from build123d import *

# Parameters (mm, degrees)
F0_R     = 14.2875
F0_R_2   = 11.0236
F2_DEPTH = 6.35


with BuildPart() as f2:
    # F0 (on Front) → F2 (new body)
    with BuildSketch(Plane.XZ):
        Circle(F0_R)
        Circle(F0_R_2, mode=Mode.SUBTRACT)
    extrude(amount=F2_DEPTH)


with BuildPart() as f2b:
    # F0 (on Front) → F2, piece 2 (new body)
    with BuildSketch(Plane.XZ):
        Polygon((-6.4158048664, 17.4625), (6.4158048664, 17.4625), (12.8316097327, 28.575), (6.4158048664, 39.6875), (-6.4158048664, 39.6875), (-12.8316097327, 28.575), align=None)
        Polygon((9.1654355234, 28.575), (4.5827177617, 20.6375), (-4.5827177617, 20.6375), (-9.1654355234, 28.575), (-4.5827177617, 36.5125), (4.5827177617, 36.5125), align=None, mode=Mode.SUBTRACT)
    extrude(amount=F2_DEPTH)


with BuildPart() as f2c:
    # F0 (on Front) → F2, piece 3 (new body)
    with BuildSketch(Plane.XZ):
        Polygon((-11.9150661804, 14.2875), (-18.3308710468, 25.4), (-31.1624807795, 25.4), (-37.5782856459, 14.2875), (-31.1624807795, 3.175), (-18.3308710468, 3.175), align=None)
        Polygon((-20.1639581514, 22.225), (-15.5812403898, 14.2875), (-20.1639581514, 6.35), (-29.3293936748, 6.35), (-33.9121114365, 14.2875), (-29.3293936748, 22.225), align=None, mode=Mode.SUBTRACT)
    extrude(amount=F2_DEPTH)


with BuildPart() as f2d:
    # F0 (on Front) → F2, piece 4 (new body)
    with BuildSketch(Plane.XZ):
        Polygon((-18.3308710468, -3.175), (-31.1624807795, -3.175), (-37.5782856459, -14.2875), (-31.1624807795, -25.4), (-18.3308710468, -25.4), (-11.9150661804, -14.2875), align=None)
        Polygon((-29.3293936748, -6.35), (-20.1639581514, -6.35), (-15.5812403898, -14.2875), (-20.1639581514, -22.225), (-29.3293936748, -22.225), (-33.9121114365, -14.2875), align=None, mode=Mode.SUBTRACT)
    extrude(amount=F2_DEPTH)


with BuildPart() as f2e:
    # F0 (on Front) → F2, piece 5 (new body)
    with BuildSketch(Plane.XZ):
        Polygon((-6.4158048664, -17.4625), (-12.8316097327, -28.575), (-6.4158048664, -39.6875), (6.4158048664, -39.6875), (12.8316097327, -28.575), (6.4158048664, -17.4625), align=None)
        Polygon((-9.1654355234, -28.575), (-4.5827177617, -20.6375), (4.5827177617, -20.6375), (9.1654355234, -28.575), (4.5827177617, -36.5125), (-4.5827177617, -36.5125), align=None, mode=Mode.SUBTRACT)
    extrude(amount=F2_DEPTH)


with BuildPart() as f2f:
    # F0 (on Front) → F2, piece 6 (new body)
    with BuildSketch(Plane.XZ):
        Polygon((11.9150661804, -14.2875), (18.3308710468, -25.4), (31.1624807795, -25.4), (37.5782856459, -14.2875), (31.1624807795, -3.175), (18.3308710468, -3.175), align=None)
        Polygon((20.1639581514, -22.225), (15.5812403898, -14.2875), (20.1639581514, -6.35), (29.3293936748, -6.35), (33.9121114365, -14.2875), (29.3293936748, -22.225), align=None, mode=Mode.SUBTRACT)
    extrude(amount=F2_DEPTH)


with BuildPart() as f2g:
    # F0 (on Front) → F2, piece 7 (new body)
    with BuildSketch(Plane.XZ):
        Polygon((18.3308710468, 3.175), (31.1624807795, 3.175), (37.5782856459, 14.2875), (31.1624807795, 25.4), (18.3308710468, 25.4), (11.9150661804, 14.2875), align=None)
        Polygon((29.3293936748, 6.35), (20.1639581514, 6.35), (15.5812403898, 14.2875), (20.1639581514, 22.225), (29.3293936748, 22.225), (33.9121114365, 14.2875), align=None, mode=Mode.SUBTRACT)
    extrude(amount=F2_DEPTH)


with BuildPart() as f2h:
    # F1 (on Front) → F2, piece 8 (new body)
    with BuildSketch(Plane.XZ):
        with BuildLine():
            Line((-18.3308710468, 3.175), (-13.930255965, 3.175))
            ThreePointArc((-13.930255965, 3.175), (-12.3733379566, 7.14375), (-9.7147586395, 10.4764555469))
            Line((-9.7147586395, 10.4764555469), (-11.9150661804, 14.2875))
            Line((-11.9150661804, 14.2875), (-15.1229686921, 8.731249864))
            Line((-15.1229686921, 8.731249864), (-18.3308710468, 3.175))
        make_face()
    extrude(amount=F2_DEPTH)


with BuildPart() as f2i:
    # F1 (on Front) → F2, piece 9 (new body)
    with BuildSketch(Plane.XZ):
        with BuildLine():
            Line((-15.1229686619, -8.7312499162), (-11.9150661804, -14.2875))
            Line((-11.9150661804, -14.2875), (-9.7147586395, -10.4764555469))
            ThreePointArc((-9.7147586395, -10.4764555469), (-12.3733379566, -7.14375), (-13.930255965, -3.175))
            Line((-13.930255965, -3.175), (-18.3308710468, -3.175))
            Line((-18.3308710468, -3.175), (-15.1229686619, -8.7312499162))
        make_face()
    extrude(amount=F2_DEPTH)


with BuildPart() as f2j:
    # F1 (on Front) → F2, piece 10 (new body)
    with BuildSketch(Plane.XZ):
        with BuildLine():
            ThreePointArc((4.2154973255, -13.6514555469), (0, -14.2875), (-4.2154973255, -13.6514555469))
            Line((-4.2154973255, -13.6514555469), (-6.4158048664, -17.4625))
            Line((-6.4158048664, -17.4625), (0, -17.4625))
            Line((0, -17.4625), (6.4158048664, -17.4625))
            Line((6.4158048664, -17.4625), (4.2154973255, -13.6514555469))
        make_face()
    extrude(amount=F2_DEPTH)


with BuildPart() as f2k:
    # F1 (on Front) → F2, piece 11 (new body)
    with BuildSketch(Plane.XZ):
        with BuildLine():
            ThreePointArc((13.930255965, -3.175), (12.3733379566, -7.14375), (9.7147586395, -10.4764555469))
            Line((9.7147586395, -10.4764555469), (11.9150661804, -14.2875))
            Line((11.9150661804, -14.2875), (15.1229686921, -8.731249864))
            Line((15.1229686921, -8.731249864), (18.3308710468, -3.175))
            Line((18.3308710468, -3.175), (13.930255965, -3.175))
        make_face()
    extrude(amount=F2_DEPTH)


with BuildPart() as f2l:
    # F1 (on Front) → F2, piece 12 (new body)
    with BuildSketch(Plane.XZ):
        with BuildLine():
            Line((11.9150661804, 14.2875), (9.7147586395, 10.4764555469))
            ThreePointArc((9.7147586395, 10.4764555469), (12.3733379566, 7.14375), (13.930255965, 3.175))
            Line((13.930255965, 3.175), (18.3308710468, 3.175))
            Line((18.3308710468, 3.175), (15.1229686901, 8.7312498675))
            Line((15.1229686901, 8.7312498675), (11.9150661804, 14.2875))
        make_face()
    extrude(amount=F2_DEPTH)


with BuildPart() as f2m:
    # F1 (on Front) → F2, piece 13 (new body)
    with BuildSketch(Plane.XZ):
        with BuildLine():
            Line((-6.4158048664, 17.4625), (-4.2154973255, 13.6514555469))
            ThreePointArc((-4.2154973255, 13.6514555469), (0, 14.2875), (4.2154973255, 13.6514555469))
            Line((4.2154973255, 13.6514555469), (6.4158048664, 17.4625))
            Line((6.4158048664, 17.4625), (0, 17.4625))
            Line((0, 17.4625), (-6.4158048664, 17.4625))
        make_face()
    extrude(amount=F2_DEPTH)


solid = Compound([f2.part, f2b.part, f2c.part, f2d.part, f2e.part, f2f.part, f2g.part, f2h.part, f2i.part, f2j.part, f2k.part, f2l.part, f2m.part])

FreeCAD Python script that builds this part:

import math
import FreeCAD as App
import Part
import Sketcher
Q = App.Units.Quantity

doc = App.newDocument("Part")
body = doc.addObject("PartDesign::Body", "Body")

sketch1 = body.newObject("Sketcher::SketchObject", "Sketch")
sketch1.AttachmentSupport = (doc.getObject("XZ_Plane"), [""])
sketch1.MapMode = "FlatFace"
sketch1.addGeometry(Part.Circle(App.Vector(0, 0, 0), App.Vector(0, 0, 1), 14), False)
sketch1.addGeometry(Part.Circle(App.Vector(0, 0, 0), App.Vector(0, 0, 1), 11), False)
sketch1.addConstraint(Sketcher.Constraint("Coincident", 0, 3, -1, 1))
sketch1.addConstraint(Sketcher.Constraint("Coincident", 1, 3, -1, 1))
sketch1.addConstraint(Sketcher.Constraint("Diameter", 0, Q("1.125 in")))
sketch1.addConstraint(Sketcher.Constraint("Diameter", 1, Q("0.868 in")))
pad1 = body.newObject("PartDesign::Pad", "Pad")
pad1.Profile = sketch1
pad1.Length = Q("0.25 in")
body2 = doc.addObject("PartDesign::Body", "Body001")

sketch2 = body2.newObject("Sketcher::SketchObject", "Sketch001")
sketch2.AttachmentSupport = (doc.getObject("XZ_Plane001"), [""])
sketch2.MapMode = "FlatFace"
sketch2.addGeometry(Part.LineSegment(App.Vector(-6, 17, 0), App.Vector(6, 17, 0)), False)
sketch2.addGeometry(Part.LineSegment(App.Vector(6, 17, 0), App.Vector(13, 29, 0)), False)
sketch2.addGeometry(Part.LineSegment(App.Vector(13, 29, 0), App.Vector(6, 40, 0)), False)
sketch2.addGeometry(Part.LineSegment(App.Vector(6, 40, 0), App.Vector(-6, 40, 0)), False)
sketch2.addGeometry(Part.LineSegment(App.Vector(-6, 40, 0), App.Vector(-13, 29, 0)), False)
sketch2.addGeometry(Part.LineSegment(App.Vector(-13, 29, 0), App.Vector(-6, 17, 0)), False)
sketch2.addGeometry(Part.LineSegment(App.Vector(5, 37, 0), App.Vector(9, 29, 0)), False)
sketch2.addGeometry(Part.LineSegment(App.Vector(9, 29, 0), App.Vector(5, 21, 0)), False)
sketch2.addGeometry(Part.LineSegment(App.Vector(5, 21, 0), App.Vector(-5, 21, 0)), False)
sketch2.addGeometry(Part.LineSegment(App.Vector(-5, 21, 0), App.Vector(-9, 29, 0)), False)
sketch2.addGeometry(Part.LineSegment(App.Vector(-9, 29, 0), App.Vector(-5, 37, 0)), False)
sketch2.addGeometry(Part.LineSegment(App.Vector(-5, 37, 0), App.Vector(5, 37, 0)), False)
sketch2.addConstraint(Sketcher.Constraint("Coincident", 0, 2, 1, 1))
sketch2.addConstraint(Sketcher.Constraint("Coincident", 1, 2, 2, 1))
sketch2.addConstraint(Sketcher.Constraint("Coincident", 2, 2, 3, 1))
sketch2.addConstraint(Sketcher.Constraint("Coincident", 3, 2, 4, 1))
sketch2.addConstraint(Sketcher.Constraint("Coincident", 4, 2, 5, 1))
sketch2.addConstraint(Sketcher.Constraint("Coincident", 5, 2, 0, 1))
sketch2.addConstraint(Sketcher.Constraint("Coincident", 6, 2, 7, 1))
sketch2.addConstraint(Sketcher.Constraint("Coincident", 7, 2, 8, 1))
sketch2.addConstraint(Sketcher.Constraint("Coincident", 8, 2, 9, 1))
sketch2.addConstraint(Sketcher.Constraint("Coincident", 9, 2, 10, 1))
sketch2.addConstraint(Sketcher.Constraint("Coincident", 10, 2, 11, 1))
sketch2.addConstraint(Sketcher.Constraint("Coincident", 11, 2, 6, 1))
sketch2.addConstraint(Sketcher.Constraint("Horizontal", 0))
sketch2.addConstraint(Sketcher.Constraint("Horizontal", 3))
sketch2.addConstraint(Sketcher.Constraint("Horizontal", 8))
sketch2.addConstraint(Sketcher.Constraint("Horizontal", 11))
sketch2.addConstraint(Sketcher.Constraint("Symmetric", 1, 2, 4, 2, -2))
sketch2.addConstraint(Sketcher.Constraint("Symmetric", 6, 2, 9, 2, -2))
sketch2.addConstraint(Sketcher.Constraint("Parallel", 1, 4))
sketch2.addConstraint(Sketcher.Constraint("Parallel", 2, 5))
sketch2.addConstraint(Sketcher.Constraint("Parallel", 5, 6))
sketch2.addConstraint(Sketcher.Constraint("Parallel", 4, 7))
sketch2.addConstraint(Sketcher.Constraint("Parallel", 6, 9))
sketch2.addConstraint(Sketcher.Constraint("Parallel", 7, 10))
sketch2.addConstraint(Sketcher.Constraint("Horizontal", 4, 2, 6, 2))
sketch2.addConstraint(Sketcher.Constraint("Vertical", 0, 2, 2, 2))
sketch2.addConstraint(Sketcher.Constraint("Vertical", 3, 2, 5, 2))
sketch2.addConstraint(Sketcher.Constraint("Vertical", 8, 2, 10, 2))
sketch2.addConstraint(Sketcher.Constraint("Angle", 1, Q("60 deg")))
sketch2.addConstraint(Sketcher.Constraint("DistanceY", 7, 2, 2, 2, Q("0.75 in")))
sketch2.addConstraint(Sketcher.Constraint("DistanceY", -1, 1, 0, 2, Q("0.6875 in")))
sketch2.addConstraint(Sketcher.Constraint("DistanceY", -1, 1, 1, 2, Q("1.125 in")))
sketch2.addConstraint(Sketcher.Constraint("DistanceX", 0, 1, 0, 2, Q("12.83161 mm")))
sketch2.addConstraint(Sketcher.Constraint("DistanceX", 8, 2, 8, 1, Q("9.165436 mm")))
pad2 = body2.newObject("PartDesign::Pad", "Pad001")
pad2.Profile = sketch2
pad2.Length = Q("0.25 in")
body3 = doc.addObject("PartDesign::Body", "Body002")

sketch3 = body3.newObject("Sketcher::SketchObject", "Sketch002")
sketch3.AttachmentSupport = (doc.getObject("XZ_Plane002"), [""])
sketch3.MapMode = "FlatFace"
sketch3.addGeometry(Part.LineSegment(App.Vector(-12, 14, 0), App.Vector(-18, 25, 0)), False)
sketch3.addGeometry(Part.LineSegment(App.Vector(-18, 25, 0), App.Vector(-31, 25, 0)), False)
sketch3.addGeometry(Part.LineSegment(App.Vector(-31, 25, 0), App.Vector(-38, 14, 0)), False)
sketch3.addGeometry(Part.LineSegment(App.Vector(-38, 14, 0), App.Vector(-31, 3, 0)), False)
sketch3.addGeometry(Part.LineSegment(App.Vector(-31, 3, 0), App.Vector(-18, 3, 0)), False)
sketch3.addGeometry(Part.LineSegment(App.Vector(-18, 3, 0), App.Vector(-12, 14, 0)), False)
sketch3.addGeometry(Part.LineSegment(App.Vector(-29, 22, 0), App.Vector(-20, 22, 0)), False)
sketch3.addGeometry(Part.LineSegment(App.Vector(-20, 22, 0), App.Vector(-16, 14, 0)), False)
sketch3.addGeometry(Part.LineSegment(App.Vector(-16, 14, 0), App.Vector(-20, 6, 0)), False)
sketch3.addGeometry(Part.LineSegment(App.Vector(-20, 6, 0), App.Vector(-29, 6, 0)), False)
sketch3.addGeometry(Part.LineSegment(App.Vector(-29, 6, 0), App.Vector(-34, 14, 0)), False)
sketch3.addGeometry(Part.LineSegment(App.Vector(-34, 14, 0), App.Vector(-29, 22, 0)), False)
sketch3.addConstraint(Sketcher.Constraint("Coincident", 0, 2, 1, 1))
sketch3.addConstraint(Sketcher.Constraint("Coincident", 1, 2, 2, 1))
sketch3.addConstraint(Sketcher.Constraint("Coincident", 2, 2, 3, 1))
sketch3.addConstraint(Sketcher.Constraint("Coincident", 3, 2, 4, 1))
sketch3.addConstraint(Sketcher.Constraint("Coincident", 4, 2, 5, 1))
sketch3.addConstraint(Sketcher.Constraint("Coincident", 5, 2, 0, 1))
sketch3.addConstraint(Sketcher.Constraint("Coincident", 6, 2, 7, 1))
sketch3.addConstraint(Sketcher.Constraint("Coincident", 7, 2, 8, 1))
sketch3.addConstraint(Sketcher.Constraint("Coincident", 8, 2, 9, 1))
sketch3.addConstraint(Sketcher.Constraint("Coincident", 9, 2, 10, 1))
sketch3.addConstraint(Sketcher.Constraint("Coincident", 10, 2, 11, 1))
sketch3.addConstraint(Sketcher.Constraint("Coincident", 11, 2, 6, 1))
sketch3.addConstraint(Sketcher.Constraint("Horizontal", 1))
sketch3.addConstraint(Sketcher.Constraint("Horizontal", 4))
sketch3.addConstraint(Sketcher.Constraint("Horizontal", 6))
sketch3.addConstraint(Sketcher.Constraint("Horizontal", 9))
sketch3.addConstraint(Sketcher.Constraint("Parallel", 0, 3))
sketch3.addConstraint(Sketcher.Constraint("Parallel", 2, 5))
sketch3.addConstraint(Sketcher.Constraint("Parallel", 3, 7))
sketch3.addConstraint(Sketcher.Constraint("Parallel", 5, 8))
sketch3.addConstraint(Sketcher.Constraint("Parallel", 7, 10))
sketch3.addConstraint(Sketcher.Constraint("Parallel", 8, 11))
sketch3.addConstraint(Sketcher.Constraint("Horizontal", 2, 2, 5, 2))
sketch3.addConstraint(Sketcher.Constraint("Horizontal", 5, 2, 7, 2))
sketch3.addConstraint(Sketcher.Constraint("Horizontal", 7, 2, 10, 2))
sketch3.addConstraint(Sketcher.Constraint("Vertical", 1, 2, 3, 2))
sketch3.addConstraint(Sketcher.Constraint("Vertical", 0, 2, 4, 2))
sketch3.addConstraint(Sketcher.Constraint("Vertical", 6, 2, 8, 2))
sketch3.addConstraint(Sketcher.Constraint("DistanceY", -1, 1, 0, 2, Q("1 in")))
sketch3.addConstraint(Sketcher.Constraint("Angle", 0, Q("120 deg")))
sketch3.addConstraint(Sketcher.Constraint("DistanceY", -1, 1, 8, 2, Q("0.25 in")))
sketch3.addConstraint(Sketcher.Constraint("DistanceY", -1, 1, 2, 2, Q("0.5625 in")))
sketch3.addConstraint(Sketcher.Constraint("DistanceX", 1, 2, 1, 1, Q("12.83161 mm")))
sketch3.addConstraint(Sketcher.Constraint("DistanceX", 6, 1, 6, 2, Q("9.165436 mm")))
sketch3.addConstraint(Sketcher.Constraint("DistanceX", 0, 2, -1, 1, Q("18.330871 mm")))
sketch3.addConstraint(Sketcher.Constraint("DistanceX", 6, 2, -1, 1, Q("20.163958 mm")))
pad3 = body3.newObject("PartDesign::Pad", "Pad002")
pad3.Profile = sketch3
pad3.Length = Q("0.25 in")
body4 = doc.addObject("PartDesign::Body", "Body003")

sketch4 = body4.newObject("Sketcher::SketchObject", "Sketch003")
sketch4.AttachmentSupport = (doc.getObject("XZ_Plane003"), [""])
sketch4.MapMode = "FlatFace"
sketch4.addGeometry(Part.LineSegment(App.Vector(-18, -3, 0), App.Vector(-31, -3, 0)), False)
sketch4.addGeometry(Part.LineSegment(App.Vector(-31, -3, 0), App.Vector(-38, -14, 0)), False)
sketch4.addGeometry(Part.LineSegment(App.Vector(-38, -14, 0), App.Vector(-31, -25, 0)), False)
sketch4.addGeometry(Part.LineSegment(App.Vector(-31, -25, 0), App.Vector(-18, -25, 0)), False)
sketch4.addGeometry(Part.LineSegment(App.Vector(-18, -25, 0), App.Vector(-12, -14, 0)), False)
sketch4.addGeometry(Part.LineSegment(App.Vector(-12, -14, 0), App.Vector(-18, -3, 0)), False)
sketch4.addGeometry(Part.LineSegment(App.Vector(-34, -14, 0), App.Vector(-29, -6, 0)), False)
sketch4.addGeometry(Part.LineSegment(App.Vector(-29, -6, 0), App.Vector(-20, -6, 0)), False)
sketch4.addGeometry(Part.LineSegment(App.Vector(-20, -6, 0), App.Vector(-16, -14, 0)), False)
sketch4.addGeometry(Part.LineSegment(App.Vector(-16, -14, 0), App.Vector(-20, -22, 0)), False)
sketch4.addGeometry(Part.LineSegment(App.Vector(-20, -22, 0), App.Vector(-29, -22, 0)), False)
sketch4.addGeometry(Part.LineSegment(App.Vector(-29, -22, 0), App.Vector(-34, -14, 0)), False)
sketch4.addConstraint(Sketcher.Constraint("Coincident", 0, 2, 1, 1))
sketch4.addConstraint(Sketcher.Constraint("Coincident", 1, 2, 2, 1))
sketch4.addConstraint(Sketcher.Constraint("Coincident", 2, 2, 3, 1))
sketch4.addConstraint(Sketcher.Constraint("Coincident", 3, 2, 4, 1))
sketch4.addConstraint(Sketcher.Constraint("Coincident", 4, 2, 5, 1))
sketch4.addConstraint(Sketcher.Constraint("Coincident", 5, 2, 0, 1))
sketch4.addConstraint(Sketcher.Constraint("Coincident", 6, 2, 7, 1))
sketch4.addConstraint(Sketcher.Constraint("Coincident", 7, 2, 8, 1))
sketch4.addConstraint(Sketcher.Constraint("Coincident", 8, 2, 9, 1))
sketch4.addConstraint(Sketcher.Constraint("Coincident", 9, 2, 10, 1))
sketch4.addConstraint(Sketcher.Constraint("Coincident", 10, 2, 11, 1))
sketch4.addConstraint(Sketcher.Constraint("Coincident", 11, 2, 6, 1))
sketch4.addConstraint(Sketcher.Constraint("Horizontal", 0))
sketch4.addConstraint(Sketcher.Constraint("Horizontal", 3))
sketch4.addConstraint(Sketcher.Constraint("Horizontal", 7))
sketch4.addConstraint(Sketcher.Constraint("Horizontal", 10))
sketch4.addConstraint(Sketcher.Constraint("Parallel", 1, 4))
sketch4.addConstraint(Sketcher.Constraint("Parallel", 2, 5))
sketch4.addConstraint(Sketcher.Constraint("Parallel", 4, 6))
sketch4.addConstraint(Sketcher.Constraint("Parallel", 5, 8))
sketch4.addConstraint(Sketcher.Constraint("Parallel", 6, 9))
sketch4.addConstraint(Sketcher.Constraint("Parallel", 8, 11))
sketch4.addConstraint(Sketcher.Constraint("Horizontal", 1, 2, 4, 2))
sketch4.addConstraint(Sketcher.Constraint("Horizontal", 4, 2, 8, 2))
sketch4.addConstraint(Sketcher.Constraint("Horizontal", 8, 2, 11, 2))
sketch4.addConstraint(Sketcher.Constraint("Vertical", 0, 2, 2, 2))
sketch4.addConstraint(Sketcher.Constraint("Vertical", 3, 2, 5, 2))
sketch4.addConstraint(Sketcher.Constraint("Vertical", 7, 2, 9, 2))
sketch4.addConstraint(Sketcher.Constraint("DistanceY", 2, 2, -1, 1, Q("1 in")))
sketch4.addConstraint(Sketcher.Constraint("Angle", 1, Q("-120 deg")))
sketch4.addConstraint(Sketcher.Constraint("DistanceY", 6, 2, -1, 1, Q("0.25 in")))
sketch4.addConstraint(Sketcher.Constraint("DistanceY", 0, 2, -1, 1, Q("0.125 in")))
sketch4.addConstraint(Sketcher.Constraint("DistanceX", 0, 2, 0, 1, Q("12.83161 mm")))
sketch4.addConstraint(Sketcher.Constraint("DistanceX", 7, 1, 7, 2, Q("9.165436 mm")))
sketch4.addConstraint(Sketcher.Constraint("DistanceX", 0, 2, -1, 1, Q("31.162481 mm")))
sketch4.addConstraint(Sketcher.Constraint("DistanceX", 7, 2, -1, 1, Q("20.163958 mm")))
pad4 = body4.newObject("PartDesign::Pad", "Pad003")
pad4.Profile = sketch4
pad4.Length = Q("0.25 in")
body5 = doc.addObject("PartDesign::Body", "Body004")

sketch5 = body5.newObject("Sketcher::SketchObject", "Sketch004")
sketch5.AttachmentSupport = (doc.getObject("XZ_Plane004"), [""])
sketch5.MapMode = "FlatFace"
sketch5.addGeometry(Part.LineSegment(App.Vector(-6, -17, 0), App.Vector(-13, -29, 0)), False)
sketch5.addGeometry(Part.LineSegment(App.Vector(-13, -29, 0), App.Vector(-6, -40, 0)), False)
sketch5.addGeometry(Part.LineSegment(App.Vector(-6, -40, 0), App.Vector(6, -40, 0)), False)
sketch5.addGeometry(Part.LineSegment(App.Vector(6, -40, 0), App.Vector(13, -29, 0)), False)
sketch5.addGeometry(Part.LineSegment(App.Vector(13, -29, 0), App.Vector(6, -17, 0)), False)
sketch5.addGeometry(Part.LineSegment(App.Vector(6, -17, 0), App.Vector(-6, -17, 0)), False)
sketch5.addGeometry(Part.LineSegment(App.Vector(-5, -37, 0), App.Vector(-9, -29, 0)), False)
sketch5.addGeometry(Part.LineSegment(App.Vector(-9, -29, 0), App.Vector(-5, -21, 0)), False)
sketch5.addGeometry(Part.LineSegment(App.Vector(-5, -21, 0), App.Vector(5, -21, 0)), False)
sketch5.addGeometry(Part.LineSegment(App.Vector(5, -21, 0), App.Vector(9, -29, 0)), False)
sketch5.addGeometry(Part.LineSegment(App.Vector(9, -29, 0), App.Vector(5, -37, 0)), False)
sketch5.addGeometry(Part.LineSegment(App.Vector(5, -37, 0), App.Vector(-5, -37, 0)), False)
sketch5.addConstraint(Sketcher.Constraint("Coincident", 0, 2, 1, 1))
sketch5.addConstraint(Sketcher.Constraint("Coincident", 1, 2, 2, 1))
sketch5.addConstraint(Sketcher.Constraint("Coincident", 2, 2, 3, 1))
sketch5.addConstraint(Sketcher.Constraint("Coincident", 3, 2, 4, 1))
sketch5.addConstraint(Sketcher.Constraint("Coincident", 4, 2, 5, 1))
sketch5.addConstraint(Sketcher.Constraint("Coincident", 5, 2, 0, 1))
sketch5.addConstraint(Sketcher.Constraint("Coincident", 6, 2, 7, 1))
sketch5.addConstraint(Sketcher.Constraint("Coincident", 7, 2, 8, 1))
sketch5.addConstraint(Sketcher.Constraint("Coincident", 8, 2, 9, 1))
sketch5.addConstraint(Sketcher.Constraint("Coincident", 9, 2, 10, 1))
sketch5.addConstraint(Sketcher.Constraint("Coincident", 10, 2, 11, 1))
sketch5.addConstraint(Sketcher.Constraint("Coincident", 11, 2, 6, 1))
sketch5.addConstraint(Sketcher.Constraint("Horizontal", 2))
sketch5.addConstraint(Sketcher.Constraint("Horizontal", 5))
sketch5.addConstraint(Sketcher.Constraint("Horizontal", 8))
sketch5.addConstraint(Sketcher.Constraint("Horizontal", 11))
sketch5.addConstraint(Sketcher.Constraint("Symmetric", 0, 2, 3, 2, -2))
sketch5.addConstraint(Sketcher.Constraint("Symmetric", 6, 2, 9, 2, -2))
sketch5.addConstraint(Sketcher.Constraint("Parallel", 0, 3))
sketch5.addConstraint(Sketcher.Constraint("Parallel", 1, 4))
sketch5.addConstraint(Sketcher.Constraint("Parallel", 4, 6))
sketch5.addConstraint(Sketcher.Constraint("Parallel", 3, 7))
sketch5.addConstraint(Sketcher.Constraint("Parallel", 6, 9))
sketch5.addConstraint(Sketcher.Constraint("Parallel", 7, 10))
sketch5.addConstraint(Sketcher.Constraint("Horizontal", 3, 2, 6, 2))
sketch5.addConstraint(Sketcher.Constraint("Vertical", 2, 2, 4, 2))
sketch5.addConstraint(Sketcher.Constraint("Vertical", 1, 2, 5, 2))
sketch5.addConstraint(Sketcher.Constraint("Vertical", 8, 2, 10, 2))
sketch5.addConstraint(Sketcher.Constraint("Angle", 0, Q("-120 deg")))
sketch5.addConstraint(Sketcher.Constraint("DistanceY", 1, 2, 7, 2, Q("0.75 in")))
sketch5.addConstraint(Sketcher.Constraint("DistanceY", 0, 2, -1, 1, Q("1.125 in")))
sketch5.addConstraint(Sketcher.Constraint("DistanceY", 1, 2, -1, 1, Q("1.5625 in")))
sketch5.addConstraint(Sketcher.Constraint("DistanceX", 2, 1, 2, 2, Q("12.83161 mm")))
sketch5.addConstraint(Sketcher.Constraint("DistanceX", 8, 1, 8, 2, Q("9.165436 mm")))
pad5 = body5.newObject("PartDesign::Pad", "Pad004")
pad5.Profile = sketch5
pad5.Length = Q("0.25 in")
body6 = doc.addObject("PartDesign::Body", "Body005")

sketch6 = body6.newObject("Sketcher::SketchObject", "Sketch005")
sketch6.AttachmentSupport = (doc.getObject("XZ_Plane005"), [""])
sketch6.MapMode = "FlatFace"
sketch6.addGeometry(Part.LineSegment(App.Vector(12, -14, 0), App.Vector(18, -25, 0)), False)
sketch6.addGeometry(Part.LineSegment(App.Vector(18, -25, 0), App.Vector(31, -25, 0)), False)
sketch6.addGeometry(Part.LineSegment(App.Vector(31, -25, 0), App.Vector(38, -14, 0)), False)
sketch6.addGeometry(Part.LineSegment(App.Vector(38, -14, 0), App.Vector(31, -3, 0)), False)
sketch6.addGeometry(Part.LineSegment(App.Vector(31, -3, 0), App.Vector(18, -3, 0)), False)
sketch6.addGeometry(Part.LineSegment(App.Vector(18, -3, 0), App.Vector(12, -14, 0)), False)
sketch6.addGeometry(Part.LineSegment(App.Vector(29, -22, 0), App.Vector(20, -22, 0)), False)
sketch6.addGeometry(Part.LineSegment(App.Vector(20, -22, 0), App.Vector(16, -14, 0)), False)
sketch6.addGeometry(Part.LineSegment(App.Vector(16, -14, 0), App.Vector(20, -6, 0)), False)
sketch6.addGeometry(Part.LineSegment(App.Vector(20, -6, 0), App.Vector(29, -6, 0)), False)
sketch6.addGeometry(Part.LineSegment(App.Vector(29, -6, 0), App.Vector(34, -14, 0)), False)
sketch6.addGeometry(Part.LineSegment(App.Vector(34, -14, 0), App.Vector(29, -22, 0)), False)
sketch6.addConstraint(Sketcher.Constraint("Coincident", 0, 2, 1, 1))
sketch6.addConstraint(Sketcher.Constraint("Coincident", 1, 2, 2, 1))
sketch6.addConstraint(Sketcher.Constraint("Coincident", 2, 2, 3, 1))
sketch6.addConstraint(Sketcher.Constraint("Coincident", 3, 2, 4, 1))
sketch6.addConstraint(Sketcher.Constraint("Coincident", 4, 2, 5, 1))
sketch6.addConstraint(Sketcher.Constraint("Coincident", 5, 2, 0, 1))
sketch6.addConstraint(Sketcher.Constraint("Coincident", 6, 2, 7, 1))
sketch6.addConstraint(Sketcher.Constraint("Coincident", 7, 2, 8, 1))
sketch6.addConstraint(Sketcher.Constraint("Coincident", 8, 2, 9, 1))
sketch6.addConstraint(Sketcher.Constraint("Coincident", 9, 2, 10, 1))
sketch6.addConstraint(Sketcher.Constraint("Coincident", 10, 2, 11, 1))
sketch6.addConstraint(Sketcher.Constraint("Coincident", 11, 2, 6, 1))
sketch6.addConstraint(Sketcher.Constraint("Horizontal", 1))
sketch6.addConstraint(Sketcher.Constraint("Horizontal", 4))
sketch6.addConstraint(Sketcher.Constraint("Horizontal", 6))
sketch6.addConstraint(Sketcher.Constraint("Horizontal", 9))
sketch6.addConstraint(Sketcher.Constraint("Parallel", 0, 3))
sketch6.addConstraint(Sketcher.Constraint("Parallel", 2, 5))
sketch6.addConstraint(Sketcher.Constraint("Parallel", 3, 7))
sketch6.addConstraint(Sketcher.Constraint("Parallel", 5, 8))
sketch6.addConstraint(Sketcher.Constraint("Parallel", 7, 10))
sketch6.addConstraint(Sketcher.Constraint("Parallel", 8, 11))
sketch6.addConstraint(Sketcher.Constraint("Horizontal", 2, 2, 5, 2))
sketch6.addConstraint(Sketcher.Constraint("Horizontal", 5, 2, 7, 2))
sketch6.addConstraint(Sketcher.Constraint("Horizontal", 7, 2, 10, 2))
sketch6.addConstraint(Sketcher.Constraint("Vertical", 1, 2, 3, 2))
sketch6.addConstraint(Sketcher.Constraint("Vertical", 0, 2, 4, 2))
sketch6.addConstraint(Sketcher.Constraint("Vertical", 6, 2, 8, 2))
sketch6.addConstraint(Sketcher.Constraint("DistanceY", 0, 2, -1, 1, Q("1 in")))
sketch6.addConstraint(Sketcher.Constraint("Angle", 0, Q("-60 deg")))
sketch6.addConstraint(Sketcher.Constraint("DistanceY", 8, 2, -1, 1, Q("0.25 in")))
sketch6.addConstraint(Sketcher.Constraint("DistanceY", 2, 2, -1, 1, Q("0.5625 in")))
sketch6.addConstraint(Sketcher.Constraint("DistanceX", 1, 1, 1, 2, Q("12.83161 mm")))
sketch6.addConstraint(Sketcher.Constraint("DistanceX", 6, 2, 6, 1, Q("9.165436 mm")))
sketch6.addConstraint(Sketcher.Constraint("DistanceX", -1, 1, 0, 2, Q("18.330871 mm")))
sketch6.addConstraint(Sketcher.Constraint("DistanceX", -1, 1, 6, 2, Q("20.163958 mm")))
pad6 = body6.newObject("PartDesign::Pad", "Pad005")
pad6.Profile = sketch6
pad6.Length = Q("0.25 in")
body7 = doc.addObject("PartDesign::Body", "Body006")

sketch7 = body7.newObject("Sketcher::SketchObject", "Sketch006")
sketch7.AttachmentSupport = (doc.getObject("XZ_Plane006"), [""])
sketch7.MapMode = "FlatFace"
sketch7.addGeometry(Part.LineSegment(App.Vector(18, 3, 0), App.Vector(31, 3, 0)), False)
sketch7.addGeometry(Part.LineSegment(App.Vector(31, 3, 0), App.Vector(38, 14, 0)), False)
sketch7.addGeometry(Part.LineSegment(App.Vector(38, 14, 0), App.Vector(31, 25, 0)), False)
sketch7.addGeometry(Part.LineSegment(App.Vector(31, 25, 0), App.Vector(18, 25, 0)), False)
sketch7.addGeometry(Part.LineSegment(App.Vector(18, 25, 0), App.Vector(12, 14, 0)), False)
sketch7.addGeometry(Part.LineSegment(App.Vector(12, 14, 0), App.Vector(18, 3, 0)), False)
sketch7.addGeometry(Part.LineSegment(App.Vector(34, 14, 0), App.Vector(29, 6, 0)), False)
sketch7.addGeometry(Part.LineSegment(App.Vector(29, 6, 0), App.Vector(20, 6, 0)), False)
sketch7.addGeometry(Part.LineSegment(App.Vector(20, 6, 0), App.Vector(16, 14, 0)), False)
sketch7.addGeometry(Part.LineSegment(App.Vector(16, 14, 0), App.Vector(20, 22, 0)), False)
sketch7.addGeometry(Part.LineSegment(App.Vector(20, 22, 0), App.Vector(29, 22, 0)), False)
sketch7.addGeometry(Part.LineSegment(App.Vector(29, 22, 0), App.Vector(34, 14, 0)), False)
sketch7.addConstraint(Sketcher.Constraint("Coincident", 0, 2, 1, 1))
sketch7.addConstraint(Sketcher.Constraint("Coincident", 1, 2, 2, 1))
sketch7.addConstraint(Sketcher.Constraint("Coincident", 2, 2, 3, 1))
sketch7.addConstraint(Sketcher.Constraint("Coincident", 3, 2, 4, 1))
sketch7.addConstraint(Sketcher.Constraint("Coincident", 4, 2, 5, 1))
sketch7.addConstraint(Sketcher.Constraint("Coincident", 5, 2, 0, 1))
sketch7.addConstraint(Sketcher.Constraint("Coincident", 6, 2, 7, 1))
sketch7.addConstraint(Sketcher.Constraint("Coincident", 7, 2, 8, 1))
sketch7.addConstraint(Sketcher.Constraint("Coincident", 8, 2, 9, 1))
sketch7.addConstraint(Sketcher.Constraint("Coincident", 9, 2, 10, 1))
sketch7.addConstraint(Sketcher.Constraint("Coincident", 10, 2, 11, 1))
sketch7.addConstraint(Sketcher.Constraint("Coincident", 11, 2, 6, 1))
sketch7.addConstraint(Sketcher.Constraint("Horizontal", 0))
sketch7.addConstraint(Sketcher.Constraint("Horizontal", 3))
sketch7.addConstraint(Sketcher.Constraint("Horizontal", 7))
sketch7.addConstraint(Sketcher.Constraint("Horizontal", 10))
sketch7.addConstraint(Sketcher.Constraint("Parallel", 1, 4))
sketch7.addConstraint(Sketcher.Constraint("Parallel", 2, 5))
sketch7.addConstraint(Sketcher.Constraint("Parallel", 4, 6))
sketch7.addConstraint(Sketcher.Constraint("Parallel", 5, 8))
sketch7.addConstraint(Sketcher.Constraint("Parallel", 6, 9))
sketch7.addConstraint(Sketcher.Constraint("Parallel", 8, 11))
sketch7.addConstraint(Sketcher.Constraint("Horizontal", 1, 2, 4, 2))
sketch7.addConstraint(Sketcher.Constraint("Horizontal", 4, 2, 8, 2))
sketch7.addConstraint(Sketcher.Constraint("Horizontal", 8, 2, 11, 2))
sketch7.addConstraint(Sketcher.Constraint("Vertical", 0, 2, 2, 2))
sketch7.addConstraint(Sketcher.Constraint("Vertical", 3, 2, 5, 2))
sketch7.addConstraint(Sketcher.Constraint("Vertical", 7, 2, 9, 2))
sketch7.addConstraint(Sketcher.Constraint("DistanceY", -1, 1, 2, 2, Q("1 in")))
sketch7.addConstraint(Sketcher.Constraint("Angle", 1, Q("60 deg")))
sketch7.addConstraint(Sketcher.Constraint("DistanceY", -1, 1, 6, 2, Q("0.25 in")))
sketch7.addConstraint(Sketcher.Constraint("DistanceY", -1, 1, 0, 2, Q("0.125 in")))
sketch7.addConstraint(Sketcher.Constraint("DistanceX", 0, 1, 0, 2, Q("12.83161 mm")))
sketch7.addConstraint(Sketcher.Constraint("DistanceX", 7, 2, 7, 1, Q("9.165436 mm")))
sketch7.addConstraint(Sketcher.Constraint("DistanceX", -1, 1, 0, 2, Q("31.162481 mm")))
sketch7.addConstraint(Sketcher.Constraint("DistanceX", -1, 1, 7, 2, Q("20.163958 mm")))
pad7 = body7.newObject("PartDesign::Pad", "Pad006")
pad7.Profile = sketch7
pad7.Length = Q("0.25 in")
body8 = doc.addObject("PartDesign::Body", "Body007")

sketch8 = body8.newObject("Sketcher::SketchObject", "Sketch007")
sketch8.AttachmentSupport = (doc.getObject("XZ_Plane007"), [""])
sketch8.MapMode = "FlatFace"
sketch8.addGeometry(Part.LineSegment(App.Vector(-18.3, 3.2, 0), App.Vector(-13.9, 3.2, 0)), False)
sketch8.addGeometry(Part.ArcOfCircle(Part.Circle(App.Vector(0, 0, 0), App.Vector(0, 0, 1), 14.3), math.radians(133), math.radians(167)), False)
sketch8.addGeometry(Part.LineSegment(App.Vector(-9.7, 10.5, 0), App.Vector(-11.9, 14.3, 0)), False)
sketch8.addGeometry(Part.LineSegment(App.Vector(-11.9, 14.3, 0), App.Vector(-15.1, 8.7, 0)), False)
sketch8.addGeometry(Part.LineSegment(App.Vector(-15.1, 8.7, 0), App.Vector(-18.3, 3.2, 0)), False)
sketch8.addConstraint(Sketcher.Constraint("Coincident", 0, 2, 1, 2))
sketch8.addConstraint(Sketcher.Constraint("Coincident", 1, 1, 2, 1))
sketch8.addConstraint(Sketcher.Constraint("Coincident", 2, 2, 3, 1))
sketch8.addConstraint(Sketcher.Constraint("Coincident", 3, 2, 4, 1))
sketch8.addConstraint(Sketcher.Constraint("Coincident", 4, 2, 0, 1))
sketch8.addConstraint(Sketcher.Constraint("Horizontal", 0))
sketch8.addConstraint(Sketcher.Constraint("Coincident", 1, 3, -1, 1))
sketch8.addConstraint(Sketcher.Constraint("Parallel", 3, 4))
sketch8.addConstraint(Sketcher.Constraint("Equal", 3, 4))
sketch8.addConstraint(Sketcher.Constraint("Angle", 2, Q("120 deg")))
sketch8.addConstraint(Sketcher.Constraint("Angle", 3, Q("-120 deg")))
sketch8.addConstraint(Sketcher.Constraint("Radius", 1, Q("0.5625 in")))
sketch8.addConstraint(Sketcher.Constraint("DistanceY", -1, 1, 0, 2, Q("0.125 in")))
sketch8.addConstraint(Sketcher.Constraint("DistanceY", -1, 1, 2, 2, Q("0.5625 in")))
sketch8.addConstraint(Sketcher.Constraint("DistanceX", 0, 1, 0, 2, Q("4.400615 mm")))
pad8 = body8.newObject("PartDesign::Pad", "Pad007")
pad8.Profile = sketch8
pad8.Length = Q("0.25 in")
body9 = doc.addObject("PartDesign::Body", "Body008")

sketch9 = body9.newObject("Sketcher::SketchObject", "Sketch008")
sketch9.AttachmentSupport = (doc.getObject("XZ_Plane008"), [""])
sketch9.MapMode = "FlatFace"
sketch9.addGeometry(Part.LineSegment(App.Vector(-15.1, -8.7, 0), App.Vector(-11.9, -14.3, 0)), False)
sketch9.addGeometry(Part.LineSegment(App.Vector(-11.9, -14.3, 0), App.Vector(-9.7, -10.5, 0)), False)
sketch9.addGeometry(Part.ArcOfCircle(Part.Circle(App.Vector(0, 0, 0), App.Vector(0, 0, 1), 14.3), math.radians(-167), math.radians(-133)), False)
sketch9.addGeometry(Part.LineSegment(App.Vector(-13.9, -3.2, 0), App.Vector(-18.3, -3.2, 0)), False)
sketch9.addGeometry(Part.LineSegment(App.Vector(-18.3, -3.2, 0), App.Vector(-15.1, -8.7, 0)), False)
sketch9.addConstraint(Sketcher.Constraint("Coincident", 0, 2, 1, 1))
sketch9.addConstraint(Sketcher.Constraint("Coincident", 1, 2, 2, 2))
sketch9.addConstraint(Sketcher.Constraint("Coincident", 2, 1, 3, 1))
sketch9.addConstraint(Sketcher.Constraint("Coincident", 3, 2, 4, 1))
sketch9.addConstraint(Sketcher.Constraint("Coincident", 4, 2, 0, 1))
sketch9.addConstraint(Sketcher.Constraint("Horizontal", 3))
sketch9.addConstraint(Sketcher.Constraint("Coincident", 2, 3, -1, 1))
sketch9.addConstraint(Sketcher.Constraint("Parallel", 0, 4))
sketch9.addConstraint(Sketcher.Constraint("Equal", 0, 4))
sketch9.addConstraint(Sketcher.Constraint("Angle", 0, Q("-60 deg")))
sketch9.addConstraint(Sketcher.Constraint("Angle", 1, Q("60 deg")))
sketch9.addConstraint(Sketcher.Constraint("Radius", 2, Q("0.5625 in")))
sketch9.addConstraint(Sketcher.Constraint("DistanceY", 0, 2, -1, 1, Q("0.5625 in")))
sketch9.addConstraint(Sketcher.Constraint("DistanceY", 2, 1, -1, 1, Q("0.125 in")))
sketch9.addConstraint(Sketcher.Constraint("DistanceX", 3, 2, 3, 1, Q("4.400615 mm")))
pad9 = body9.newObject("PartDesign::Pad", "Pad008")
pad9.Profile = sketch9
pad9.Length = Q("0.25 in")
body10 = doc.addObject("PartDesign::Body", "Body009")

sketch10 = body10.newObject("Sketcher::SketchObject", "Sketch009")
sketch10.AttachmentSupport = (doc.getObject("XZ_Plane009"), [""])
sketch10.MapMode = "FlatFace"
sketch10.addGeometry(Part.ArcOfCircle(Part.Circle(App.Vector(0, 0, 0), App.Vector(0, 0, 1), 14.3), math.radians(-107), math.radians(-73)), False)
sketch10.addGeometry(Part.LineSegment(App.Vector(-4.2, -13.7, 0), App.Vector(-6.4, -17.5, 0)), False)
sketch10.addGeometry(Part.LineSegment(App.Vector(-6.4, -17.5, 0), App.Vector(6.4, -17.5, 0)), False)
sketch10.addGeometry(Part.LineSegment(App.Vector(6.4, -17.5, 0), App.Vector(4.2, -13.7, 0)), False)
sketch10.addConstraint(Sketcher.Constraint("Coincident", 0, 1, 1, 1))
sketch10.addConstraint(Sketcher.Constraint("Coincident", 1, 2, 2, 1))
sketch10.addConstraint(Sketcher.Constraint("Coincident", 2, 2, 3, 1))
sketch10.addConstraint(Sketcher.Constraint("Coincident", 3, 2, 0, 2))
sketch10.addConstraint(Sketcher.Constraint("Horizontal", 2))
sketch10.addConstraint(Sketcher.Constraint("Coincident", 0, 3, -1, 1))
sketch10.addConstraint(Sketcher.Constraint("Horizontal", 0, 1, 3, 2))
sketch10.addConstraint(Sketcher.Constraint("Equal", 1, 3))
sketch10.addConstraint(Sketcher.Constraint("Angle", 1, Q("-120 deg")))
sketch10.addConstraint(Sketcher.Constraint("Radius", 0, Q("0.5625 in")))
sketch10.addConstraint(Sketcher.Constraint("DistanceY", 1, 2, -1, 1, Q("0.6875 in")))
sketch10.addConstraint(Sketcher.Constraint("DistanceX", 2, 1, 2, 2, Q("12.83161 mm")))
pad10 = body10.newObject("PartDesign::Pad", "Pad009")
pad10.Profile = sketch10
pad10.Length = Q("0.25 in")
body11 = doc.addObject("PartDesign::Body", "Body010")

sketch11 = body11.newObject("Sketcher::SketchObject", "Sketch010")
sketch11.AttachmentSupport = (doc.getObject("XZ_Plane010"), [""])
sketch11.MapMode = "FlatFace"
sketch11.addGeometry(Part.ArcOfCircle(Part.Circle(App.Vector(0, 0, 0), App.Vector(0, 0, 1), 14.3), math.radians(-47), math.radians(-13)), False)
sketch11.addGeometry(Part.LineSegment(App.Vector(9.7, -10.5, 0), App.Vector(11.9, -14.3, 0)), False)
sketch11.addGeometry(Part.LineSegment(App.Vector(11.9, -14.3, 0), App.Vector(15.1, -8.7, 0)), False)
sketch11.addGeometry(Part.LineSegment(App.Vector(15.1, -8.7, 0), App.Vector(18.3, -3.2, 0)), False)
sketch11.addGeometry(Part.LineSegment(App.Vector(18.3, -3.2, 0), App.Vector(13.9, -3.2, 0)), False)
sketch11.addConstraint(Sketcher.Constraint("Coincident", 0, 1, 1, 1))
sketch11.addConstraint(Sketcher.Constraint("Coincident", 1, 2, 2, 1))
sketch11.addConstraint(Sketcher.Constraint("Coincident", 2, 2, 3, 1))
sketch11.addConstraint(Sketcher.Constraint("Coincident", 3, 2, 4, 1))
sketch11.addConstraint(Sketcher.Constraint("Coincident", 4, 2, 0, 2))
sketch11.addConstraint(Sketcher.Constraint("Horizontal", 4))
sketch11.addConstraint(Sketcher.Constraint("Coincident", 0, 3, -1, 1))
sketch11.addConstraint(Sketcher.Constraint("Parallel", 2, 3))
sketch11.addConstraint(Sketcher.Constraint("Equal", 2, 3))
sketch11.addConstraint(Sketcher.Constraint("Angle", 1, Q("-60 deg")))
sketch11.addConstraint(Sketcher.Constraint("Angle", 2, Q("60 deg")))
sketch11.addConstraint(Sketcher.Constraint("Radius", 0, Q("0.5625 in")))
sketch11.addConstraint(Sketcher.Constraint("DistanceY", 1, 2, -1, 1, Q("0.5625 in")))
sketch11.addConstraint(Sketcher.Constraint("DistanceY", 2, 2, -1, 1, Q("0.34375 in")))
sketch11.addConstraint(Sketcher.Constraint("DistanceX", 4, 2, 4, 1, Q("4.400615 mm")))
pad11 = body11.newObject("PartDesign::Pad", "Pad010")
pad11.Profile = sketch11
pad11.Length = Q("0.25 in")
body12 = doc.addObject("PartDesign::Body", "Body011")

sketch12 = body12.newObject("Sketcher::SketchObject", "Sketch011")
sketch12.AttachmentSupport = (doc.getObject("XZ_Plane011"), [""])
sketch12.MapMode = "FlatFace"
sketch12.addGeometry(Part.LineSegment(App.Vector(11.9, 14.3, 0), App.Vector(9.7, 10.5, 0)), False)
sketch12.addGeometry(Part.ArcOfCircle(Part.Circle(App.Vector(0, 0, 0), App.Vector(0, 0, 1), 14.3), math.radians(13), math.radians(47)), False)
sketch12.addGeometry(Part.LineSegment(App.Vector(13.9, 3.2, 0), App.Vector(18.3, 3.2, 0)), False)
sketch12.addGeometry(Part.LineSegment(App.Vector(18.3, 3.2, 0), App.Vector(11.9, 14.3, 0)), False)
sketch12.addConstraint(Sketcher.Constraint("Coincident", 0, 2, 1, 2))
sketch12.addConstraint(Sketcher.Constraint("Coincident", 1, 1, 2, 1))
sketch12.addConstraint(Sketcher.Constraint("Coincident", 2, 2, 3, 1))
sketch12.addConstraint(Sketcher.Constraint("Coincident", 3, 2, 0, 1))
sketch12.addConstraint(Sketcher.Constraint("Horizontal", 2))
sketch12.addConstraint(Sketcher.Constraint("Coincident", 1, 3, -1, 1))
sketch12.addConstraint(Sketcher.Constraint("Angle", 0, Q("-120 deg")))
sketch12.addConstraint(Sketcher.Constraint("Angle", 3, Q("120 deg")))
sketch12.addConstraint(Sketcher.Constraint("Radius", 1, Q("0.5625 in")))
sketch12.addConstraint(Sketcher.Constraint("DistanceY", -1, 1, 1, 1, Q("0.125 in")))
sketch12.addConstraint(Sketcher.Constraint("DistanceY", -1, 1, 3, 2, Q("0.5625 in")))
sketch12.addConstraint(Sketcher.Constraint("DistanceX", 2, 1, 2, 2, Q("4.400615 mm")))
pad12 = body12.newObject("PartDesign::Pad", "Pad011")
pad12.Profile = sketch12
pad12.Length = Q("0.25 in")
body13 = doc.addObject("PartDesign::Body", "Body012")

sketch13 = body13.newObject("Sketcher::SketchObject", "Sketch012")
sketch13.AttachmentSupport = (doc.getObject("XZ_Plane012"), [""])
sketch13.MapMode = "FlatFace"
sketch13.addGeometry(Part.LineSegment(App.Vector(-6.4, 17.5, 0), App.Vector(-4.2, 13.7, 0)), False)
sketch13.addGeometry(Part.ArcOfCircle(Part.Circle(App.Vector(0, 0, 0), App.Vector(0, 0, 1), 14.3), math.radians(73), math.radians(107)), False)
sketch13.addGeometry(Part.LineSegment(App.Vector(4.2, 13.7, 0), App.Vector(6.4, 17.5, 0)), False)
sketch13.addGeometry(Part.LineSegment(App.Vector(6.4, 17.5, 0), App.Vector(-6.4, 17.5, 0)), False)
sketch13.addConstraint(Sketcher.Constraint("Coincident", 0, 2, 1, 2))
sketch13.addConstraint(Sketcher.Constraint("Coincident", 1, 1, 2, 1))
sketch13.addConstraint(Sketcher.Constraint("Coincident", 2, 2, 3, 1))
sketch13.addConstraint(Sketcher.Constraint("Coincident", 3, 2, 0, 1))
sketch13.addConstraint(Sketcher.Constraint("Horizontal", 3))
sketch13.addConstraint(Sketcher.Constraint("Coincident", 1, 3, -1, 1))
sketch13.addConstraint(Sketcher.Constraint("Horizontal", 0, 2, 1, 1))
sketch13.addConstraint(Sketcher.Constraint("Equal", 0, 2))
sketch13.addConstraint(Sketcher.Constraint("Angle", 0, Q("-60 deg")))
sketch13.addConstraint(Sketcher.Constraint("Radius", 1, Q("0.5625 in")))
sketch13.addConstraint(Sketcher.Constraint("DistanceY", -1, 1, 2, 2, Q("0.6875 in")))
sketch13.addConstraint(Sketcher.Constraint("DistanceX", 3, 2, 3, 1, Q("12.83161 mm")))
pad13 = body13.newObject("PartDesign::Pad", "Pad012")
pad13.Profile = sketch13
pad13.Length = Q("0.25 in")

doc.recompute()
